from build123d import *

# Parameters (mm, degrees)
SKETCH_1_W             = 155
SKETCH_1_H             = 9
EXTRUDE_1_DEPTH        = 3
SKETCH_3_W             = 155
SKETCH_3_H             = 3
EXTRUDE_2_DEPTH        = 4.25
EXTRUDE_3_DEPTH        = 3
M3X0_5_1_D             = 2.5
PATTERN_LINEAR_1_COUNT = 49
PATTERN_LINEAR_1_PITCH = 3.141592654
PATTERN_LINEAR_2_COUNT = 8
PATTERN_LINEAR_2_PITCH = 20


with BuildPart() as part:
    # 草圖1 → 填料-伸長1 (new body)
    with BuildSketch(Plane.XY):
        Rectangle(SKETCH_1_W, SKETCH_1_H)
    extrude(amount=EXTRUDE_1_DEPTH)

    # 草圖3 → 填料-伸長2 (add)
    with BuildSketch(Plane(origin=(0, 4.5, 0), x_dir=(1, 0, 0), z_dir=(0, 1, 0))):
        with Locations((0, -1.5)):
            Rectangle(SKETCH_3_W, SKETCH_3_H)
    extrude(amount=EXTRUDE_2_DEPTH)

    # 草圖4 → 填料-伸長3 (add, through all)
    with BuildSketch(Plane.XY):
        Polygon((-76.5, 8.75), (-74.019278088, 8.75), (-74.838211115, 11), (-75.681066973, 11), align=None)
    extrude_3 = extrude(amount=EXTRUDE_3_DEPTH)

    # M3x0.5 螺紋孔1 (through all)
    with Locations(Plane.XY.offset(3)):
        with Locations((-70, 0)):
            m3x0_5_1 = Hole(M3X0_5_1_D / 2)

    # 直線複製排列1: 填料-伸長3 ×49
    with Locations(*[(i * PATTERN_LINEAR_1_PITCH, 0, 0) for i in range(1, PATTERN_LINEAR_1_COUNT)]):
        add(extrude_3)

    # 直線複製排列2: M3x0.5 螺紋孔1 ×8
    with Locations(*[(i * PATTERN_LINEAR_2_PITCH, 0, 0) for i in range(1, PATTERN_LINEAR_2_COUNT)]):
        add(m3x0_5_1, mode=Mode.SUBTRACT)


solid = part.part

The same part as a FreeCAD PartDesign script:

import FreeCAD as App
import Part
import Sketcher
from FreeCAD import Vector
Q = App.Units.Quantity

doc = App.newDocument("Part")
params = doc.addObject("Spreadsheet::Sheet", "Params")
for row, (alias, value) in enumerate([
    ("sketch1_width", "155 mm"),
    ("sketch1_height", "9 mm"),
    ("pad1_length", "3 mm"),
    ("sketch2_width", "155 mm"),
    ("sketch2_height", "3 mm"),
    ("pad2_length", "4.25 mm"),
    ("pad3_length", "3 mm"),
    ("sketch4_diameter", "2.5 mm"),
    ("hole_diameter", "2.5 mm"),
    ("linearpattern_pitch", "3.141593 mm"),
    ("linearpattern2_pitch", "20 mm"),
], start=1):
    params.set(f"A{row}", alias)
    params.set(f"B{row}", "=" + value)
    params.setAlias(f"B{row}", alias)

body = doc.addObject("PartDesign::Body", "Body")

sketch1 = doc.addObject("Sketcher::SketchObject", "Sketch")
body.addObject(sketch1)
sketch1.AttachmentSupport = (doc.XY_Plane, [""])
sketch1.MapMode = "FlatFace"
sketch1.addGeometry([
    Part.LineSegment(Vector(-78, 4, 0), Vector(-78, -4, 0)),
    Part.LineSegment(Vector(-78, -4, 0), Vector(78, -4, 0)),
    Part.LineSegment(Vector(78, -4, 0), Vector(78, 4, 0)),
    Part.LineSegment(Vector(78, 4, 0), Vector(-78, 4, 0)),
], False)
sketch1.addConstraint([
    Sketcher.Constraint("Coincident", 0, 2, 1, 1),
    Sketcher.Constraint("Coincident", 1, 2, 2, 1),
    Sketcher.Constraint("Coincident", 2, 2, 3, 1),
    Sketcher.Constraint("Coincident", 3, 2, 0, 1),
    Sketcher.Constraint("Vertical", 0),
    Sketcher.Constraint("Horizontal", 1),
    Sketcher.Constraint("Vertical", 2),
    Sketcher.Constraint("Horizontal", 3),
    Sketcher.Constraint("Symmetric", 0, 2, 2, 2, -1, 1),
    Sketcher.Constraint("DistanceX", 1, 1, 1, 2, 155.0),
    Sketcher.Constraint("DistanceY", 0, 2, 0, 1, 9.0),
])
sketch1.setExpression("Constraints[9]", "Params.sketch1_width")
sketch1.setExpression("Constraints[10]", "Params.sketch1_height")
pad1 = doc.addObject("PartDesign::Pad", "Pad")
body.addObject(pad1)
pad1.Profile = sketch1
pad1.setExpression("Length", "Params.pad1_length")

sketch2 = doc.addObject("Sketcher::SketchObject", "Sketch001")
body.addObject(sketch2)
sketch2.AttachmentSupport = (doc.XZ_Plane, [""])
sketch2.MapMode = "FlatFace"
sketch2.AttachmentOffset = App.Placement(Vector(0, 0, -4.5), App.Rotation())
sketch2.addGeometry([
    Part.LineSegment(Vector(-77.5, 0, 0), Vector(-77.5, 3, 0)),
    Part.LineSegment(Vector(-77.5, 3, 0), Vector(77.5, 3, 0)),
    Part.LineSegment(Vector(77.5, 3, 0), Vector(77.5, 0, 0)),
    Part.LineSegment(Vector(77.5, 0, 0), Vector(-77.5, 0, 0)),
], False)
sketch2.addConstraint([
    Sketcher.Constraint("Coincident", 0, 2, 1, 1),
    Sketcher.Constraint("Coincident", 1, 2, 2, 1),
    Sketcher.Constraint("Coincident", 2, 2, 3, 1),
    Sketcher.Constraint("Coincident", 3, 2, 0, 1),
    Sketcher.Constraint("Vertical", 0),
    Sketcher.Constraint("Horizontal", 1),
    Sketcher.Constraint("Vertical", 2),
    Sketcher.Constraint("Horizontal", 3),
    Sketcher.Constraint("Symmetric", 2, 2, 3, 2, -1, 1),
    Sketcher.Constraint("DistanceX", 1, 1, 1, 2, 155.0),
    Sketcher.Constraint("DistanceY", 0, 1, 0, 2, 3.0),
])
sketch2.setExpression("Constraints[9]", "Params.sketch2_width")
sketch2.setExpression("Constraints[10]", "Params.sketch2_height")
pad2 = doc.addObject("PartDesign::Pad", "Pad001")
body.addObject(pad2)
pad2.Profile = sketch2
pad2.setExpression("Length", "Params.pad2_length")
pad2.Reversed = True

sketch3 = doc.addObject("Sketcher::SketchObject", "Sketch002")
body.addObject(sketch3)
sketch3.AttachmentSupport = (doc.XY_Plane, [""])
sketch3.MapMode = "FlatFace"
sketch3.addGeometry([
    Part.LineSegment(Vector(-76.5, 8.8, 0), Vector(-74, 8.8, 0)),
    Part.LineSegment(Vector(-74, 8.8, 0), Vector(-74.8, 11, 0)),
    Part.LineSegment(Vector(-74.8, 11, 0), Vector(-75.7, 11, 0)),
    Part.LineSegment(Vector(-75.7, 11, 0), Vector(-76.5, 8.8, 0)),
], False)
sketch3.addConstraint([
    Sketcher.Constraint("Coincident", 0, 2, 1, 1),
    Sketcher.Constraint("Coincident", 1, 2, 2, 1),
    Sketcher.Constraint("Coincident", 2, 2, 3, 1),
    Sketcher.Constraint("Coincident", 3, 2, 0, 1),
    Sketcher.Constraint("Horizontal", 0),
    Sketcher.Constraint("Horizontal", 2),
    Sketcher.Constraint("Equal", 1, 3),
    Sketcher.Constraint("Angle", 1, Q("110 deg")),
    Sketcher.Constraint("DistanceY", -1, 1, 1, 2, 11.0),
    Sketcher.Constraint("DistanceX", 3, 2, -1, 1, 76.5),
    Sketcher.Constraint("DistanceY", -1, 1, 0, 2, 8.75),
    Sketcher.Constraint("DistanceX", 0, 1, 0, 2, 2.480722),
])
pad3 = doc.addObject("PartDesign::Pad", "Pad002")
body.addObject(pad3)
pad3.Profile = sketch3
pad3.setExpression("Length", "Params.pad3_length")

sketch4 = doc.addObject("Sketcher::SketchObject", "Sketch003")
body.addObject(sketch4)
sketch4.AttachmentSupport = (doc.XY_Plane, [""])
sketch4.MapMode = "FlatFace"
sketch4.AttachmentOffset = App.Placement(Vector(0, 0, 3), App.Rotation())
sketch4.addGeometry(Part.Circle(Vector(-70, 0, 0), Vector(0, 0, 1), 1.2), False)
sketch4.addConstraint([
    Sketcher.Constraint("PointOnObject", 0, 3, -1),
    Sketcher.Constraint("Diameter", 0, 2.5),
    Sketcher.Constraint("DistanceX", 0, 3, -1, 1, 70.0),
])
sketch4.setExpression("Constraints[1]", "Params.sketch4_diameter")
doc.recompute()
hole = doc.addObject("PartDesign::Hole", "Hole")
body.addObject(hole)
hole.Profile = sketch4
hole.ThreadType = "None"
hole.setExpression("Diameter", "Params.hole_diameter")
hole.DepthType = "ThroughAll"
doc.recompute()

linearpattern = doc.addObject("PartDesign::LinearPattern", "LinearPattern")
body.addObject(linearpattern)
linearpattern.Originals = [pad3]
linearpattern.Direction = (doc.X_Axis, [""])
linearpattern.Mode = "offset"
linearpattern.setExpression("Offset", "Params.linearpattern_pitch")
linearpattern.Occurrences = 49
body.Tip = linearpattern
doc.recompute()

linearpattern2 = doc.addObject("PartDesign::LinearPattern", "LinearPattern001")
body.addObject(linearpattern2)
linearpattern2.Originals = [hole]
linearpattern2.Direction = (doc.X_Axis, [""])
linearpattern2.Mode = "offset"
linearpattern2.setExpression("Offset", "Params.linearpattern2_pitch")
linearpattern2.Occurrences = 8
body.Tip = linearpattern2

doc.recompute()
